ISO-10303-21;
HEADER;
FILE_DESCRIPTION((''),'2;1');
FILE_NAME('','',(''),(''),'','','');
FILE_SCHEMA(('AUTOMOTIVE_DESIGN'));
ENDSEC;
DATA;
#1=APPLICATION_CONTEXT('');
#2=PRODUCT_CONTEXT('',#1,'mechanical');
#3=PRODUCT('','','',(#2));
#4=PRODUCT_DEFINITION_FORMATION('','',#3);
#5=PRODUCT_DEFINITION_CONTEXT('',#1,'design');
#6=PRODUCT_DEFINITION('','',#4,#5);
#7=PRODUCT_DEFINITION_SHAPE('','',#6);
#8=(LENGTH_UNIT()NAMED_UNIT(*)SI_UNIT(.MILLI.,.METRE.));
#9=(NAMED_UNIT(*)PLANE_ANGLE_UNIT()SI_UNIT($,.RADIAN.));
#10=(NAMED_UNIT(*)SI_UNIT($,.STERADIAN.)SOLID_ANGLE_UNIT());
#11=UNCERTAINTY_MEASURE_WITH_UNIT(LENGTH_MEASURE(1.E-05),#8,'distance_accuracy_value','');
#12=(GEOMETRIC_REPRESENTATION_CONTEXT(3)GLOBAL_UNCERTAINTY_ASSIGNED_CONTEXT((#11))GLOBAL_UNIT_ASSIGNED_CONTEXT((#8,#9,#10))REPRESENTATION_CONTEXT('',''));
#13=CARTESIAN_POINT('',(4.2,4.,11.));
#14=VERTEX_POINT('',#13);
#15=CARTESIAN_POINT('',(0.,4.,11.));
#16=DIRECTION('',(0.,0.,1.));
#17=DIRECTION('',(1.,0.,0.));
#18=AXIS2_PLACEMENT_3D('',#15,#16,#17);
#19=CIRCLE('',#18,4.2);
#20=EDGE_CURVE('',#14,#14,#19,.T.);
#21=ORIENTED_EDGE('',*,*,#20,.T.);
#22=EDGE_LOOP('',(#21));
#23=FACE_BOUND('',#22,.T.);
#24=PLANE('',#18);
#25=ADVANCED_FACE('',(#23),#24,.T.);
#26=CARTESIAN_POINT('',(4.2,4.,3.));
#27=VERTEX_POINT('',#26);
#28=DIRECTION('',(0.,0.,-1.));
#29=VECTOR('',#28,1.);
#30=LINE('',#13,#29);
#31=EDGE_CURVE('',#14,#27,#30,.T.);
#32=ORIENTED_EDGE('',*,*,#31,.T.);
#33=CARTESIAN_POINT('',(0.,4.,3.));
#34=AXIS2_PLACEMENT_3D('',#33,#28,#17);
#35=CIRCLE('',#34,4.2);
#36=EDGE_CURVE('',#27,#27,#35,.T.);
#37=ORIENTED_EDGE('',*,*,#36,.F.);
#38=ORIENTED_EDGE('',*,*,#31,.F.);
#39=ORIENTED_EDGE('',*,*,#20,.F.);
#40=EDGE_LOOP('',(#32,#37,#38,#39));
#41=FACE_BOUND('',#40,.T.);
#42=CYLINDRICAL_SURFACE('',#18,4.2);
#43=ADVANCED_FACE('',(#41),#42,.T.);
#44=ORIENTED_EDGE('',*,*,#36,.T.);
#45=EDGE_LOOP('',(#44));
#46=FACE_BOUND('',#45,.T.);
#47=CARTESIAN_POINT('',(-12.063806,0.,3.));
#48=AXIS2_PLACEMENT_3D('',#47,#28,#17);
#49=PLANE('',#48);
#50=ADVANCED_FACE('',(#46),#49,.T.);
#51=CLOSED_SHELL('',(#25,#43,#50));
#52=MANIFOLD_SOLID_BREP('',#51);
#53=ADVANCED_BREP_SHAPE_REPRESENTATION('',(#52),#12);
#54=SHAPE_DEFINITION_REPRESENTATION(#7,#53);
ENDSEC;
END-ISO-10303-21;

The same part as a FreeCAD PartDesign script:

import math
import FreeCAD as App
import Part
import Sketcher
from FreeCAD import Vector


def add_polygon(sketch, points):
    """Adds a closed chain of lines whose ends are joined by coincident constraints."""
    first, n = sketch.GeometryCount, len(points)
    for a, b in zip(points, points[1:] + points[:1]):
        sketch.addGeometry(Part.LineSegment(App.Vector(*a, 0), App.Vector(*b, 0)), False)
    for i in range(n):
        sketch.addConstraint(Sketcher.Constraint("Coincident", first + i, 2, first + (i + 1) % n, 1))

doc = App.newDocument("Part")
params = doc.addObject("Spreadsheet::Sheet", "Params")
for row, (alias, value) in enumerate([
    ("sketch1_diameter", "22 mm"),
    ("sketch1_radius", "4.1 mm"),
    ("pad1_length", "5 mm"),
    ("sketch2_diameter", "22 mm"),
    ("pad2_length", "3 mm"),
    ("sketch3_diameter", "8.4 mm"),
    ("pad3_length", "8 mm"),
    ("sketch4_height", "8 mm"),
], start=1):
    params.set(f"A{row}", alias)
    params.set(f"B{row}", "=" + value)
    params.setAlias(f"B{row}", alias)

body = doc.addObject("PartDesign::Body", "Body")

sketch1 = body.newObject("Sketcher::SketchObject", "Sketch")
sketch1.AttachmentSupport = (doc.getObject("XY_Plane"), [""])
sketch1.MapMode = "FlatFace"
sketch1.addGeometry([
    Part.Circle(Vector(0, 0, 0), Vector(0, 0, 1), 11),
    Part.ArcOfCircle(Part.Circle(Vector(0, 0, 0), Vector(0, 0, 1), 4.1), math.radians(130.878641), math.radians(409.121359)),
    Part.LineSegment(Vector(-2.683282, 3.1, 0), Vector(2.683282, 3.1, 0)),
], False)
sketch1.addConstraint([
    Sketcher.Constraint("Coincident", 1, 1, 2, 1),
    Sketcher.Constraint("Coincident", 2, 2, 1, 2),
    Sketcher.Constraint("Horizontal", 2),
    Sketcher.Constraint("Coincident", 0, 3, -1, 1),
    Sketcher.Constraint("Coincident", 1, 3, -1, 1),
    Sketcher.Constraint("Diameter", 0, 22.0),
    Sketcher.Constraint("Radius", 1, 4.1),
    Sketcher.Constraint("DistanceY", -1, 1, 1, 1, 3.1),
])
sketch1.setExpression("Constraints[5]", "Params.sketch1_diameter")
sketch1.setExpression("Constraints[6]", "Params.sketch1_radius")
pad1 = body.newObject("PartDesign::Pad", "Pad")
pad1.Profile = sketch1
pad1.setExpression("Length", "Params.pad1_length")
pad1.Reversed = True

sketch2 = body.newObject("Sketcher::SketchObject", "Sketch001")
sketch2.AttachmentSupport = (doc.getObject("XY_Plane"), [""])
sketch2.MapMode = "FlatFace"
sketch2.AttachmentOffset = App.Placement(Vector(0, 0, 3), App.Rotation())
sketch2.addGeometry(Part.Circle(Vector(0, 0, 0), Vector(0, 0, 1), 11), False)
sketch2.addConstraint([
    Sketcher.Constraint("Coincident", 0, 3, -1, 1),
    Sketcher.Constraint("Diameter", 0, 22.0),
])
sketch2.setExpression("Constraints[1]", "Params.sketch2_diameter")
pad2 = body.newObject("PartDesign::Pad", "Pad001")
pad2.Profile = sketch2
pad2.setExpression("Length", "Params.pad2_length")
pad2.Reversed = True

sketch3 = body.newObject("Sketcher::SketchObject", "Sketch002")
sketch3.AttachmentSupport = (doc.getObject("XY_Plane"), [""])
sketch3.MapMode = "FlatFace"
sketch3.AttachmentOffset = App.Placement(Vector(0, 0, 11), App.Rotation())
sketch3.addGeometry(Part.Circle(Vector(0, 4, 0), Vector(0, 0, 1), 4.2), False)
sketch3.addConstraint([
    Sketcher.Constraint("PointOnObject", 0, 3, -2),
    Sketcher.Constraint("Diameter", 0, 8.4),
    Sketcher.Constraint("DistanceY", -1, 1, 0, 3, 4.0),
])
sketch3.setExpression("Constraints[1]", "Params.sketch3_diameter")
pad3 = body.newObject("PartDesign::Pad", "Pad002")
pad3.Profile = sketch3
pad3.setExpression("Length", "Params.pad3_length")
pad3.Reversed = True

sketch4 = body.newObject("Sketcher::SketchObject", "Sketch003")
sketch4.AttachmentSupport = (doc.getObject("XZ_Plane"), [""])
sketch4.MapMode = "FlatFace"
add_polygon(sketch4, [(-12.063806, 3), (-12.063806, -5), (13.072064, -5), (13.072064, 3)])
sketch4.addConstraint([
    Sketcher.Constraint("Vertical", 0),
    Sketcher.Constraint("Horizontal", 1),
    Sketcher.Constraint("Vertical", 2),
    Sketcher.Constraint("Horizontal", 3),
    Sketcher.Constraint("DistanceY", 0, 2, 0, 1, 8.0),
    Sketcher.Constraint("DistanceY", 0, 2, -1, 1, 5.0),
    Sketcher.Constraint("DistanceX", 1, 1, 1, 2, 25.13587),
    Sketcher.Constraint("DistanceX", 0, 2, -1, 1, 12.063806),
])
sketch4.setExpression("Constraints[8]", "Params.sketch4_height")
pocket1 = body.newObject("PartDesign::Pocket", "Pocket")
pocket1.Profile = sketch4
pocket1.Type = "ThroughAll"
pocket1.Midplane = True

doc.recompute()
